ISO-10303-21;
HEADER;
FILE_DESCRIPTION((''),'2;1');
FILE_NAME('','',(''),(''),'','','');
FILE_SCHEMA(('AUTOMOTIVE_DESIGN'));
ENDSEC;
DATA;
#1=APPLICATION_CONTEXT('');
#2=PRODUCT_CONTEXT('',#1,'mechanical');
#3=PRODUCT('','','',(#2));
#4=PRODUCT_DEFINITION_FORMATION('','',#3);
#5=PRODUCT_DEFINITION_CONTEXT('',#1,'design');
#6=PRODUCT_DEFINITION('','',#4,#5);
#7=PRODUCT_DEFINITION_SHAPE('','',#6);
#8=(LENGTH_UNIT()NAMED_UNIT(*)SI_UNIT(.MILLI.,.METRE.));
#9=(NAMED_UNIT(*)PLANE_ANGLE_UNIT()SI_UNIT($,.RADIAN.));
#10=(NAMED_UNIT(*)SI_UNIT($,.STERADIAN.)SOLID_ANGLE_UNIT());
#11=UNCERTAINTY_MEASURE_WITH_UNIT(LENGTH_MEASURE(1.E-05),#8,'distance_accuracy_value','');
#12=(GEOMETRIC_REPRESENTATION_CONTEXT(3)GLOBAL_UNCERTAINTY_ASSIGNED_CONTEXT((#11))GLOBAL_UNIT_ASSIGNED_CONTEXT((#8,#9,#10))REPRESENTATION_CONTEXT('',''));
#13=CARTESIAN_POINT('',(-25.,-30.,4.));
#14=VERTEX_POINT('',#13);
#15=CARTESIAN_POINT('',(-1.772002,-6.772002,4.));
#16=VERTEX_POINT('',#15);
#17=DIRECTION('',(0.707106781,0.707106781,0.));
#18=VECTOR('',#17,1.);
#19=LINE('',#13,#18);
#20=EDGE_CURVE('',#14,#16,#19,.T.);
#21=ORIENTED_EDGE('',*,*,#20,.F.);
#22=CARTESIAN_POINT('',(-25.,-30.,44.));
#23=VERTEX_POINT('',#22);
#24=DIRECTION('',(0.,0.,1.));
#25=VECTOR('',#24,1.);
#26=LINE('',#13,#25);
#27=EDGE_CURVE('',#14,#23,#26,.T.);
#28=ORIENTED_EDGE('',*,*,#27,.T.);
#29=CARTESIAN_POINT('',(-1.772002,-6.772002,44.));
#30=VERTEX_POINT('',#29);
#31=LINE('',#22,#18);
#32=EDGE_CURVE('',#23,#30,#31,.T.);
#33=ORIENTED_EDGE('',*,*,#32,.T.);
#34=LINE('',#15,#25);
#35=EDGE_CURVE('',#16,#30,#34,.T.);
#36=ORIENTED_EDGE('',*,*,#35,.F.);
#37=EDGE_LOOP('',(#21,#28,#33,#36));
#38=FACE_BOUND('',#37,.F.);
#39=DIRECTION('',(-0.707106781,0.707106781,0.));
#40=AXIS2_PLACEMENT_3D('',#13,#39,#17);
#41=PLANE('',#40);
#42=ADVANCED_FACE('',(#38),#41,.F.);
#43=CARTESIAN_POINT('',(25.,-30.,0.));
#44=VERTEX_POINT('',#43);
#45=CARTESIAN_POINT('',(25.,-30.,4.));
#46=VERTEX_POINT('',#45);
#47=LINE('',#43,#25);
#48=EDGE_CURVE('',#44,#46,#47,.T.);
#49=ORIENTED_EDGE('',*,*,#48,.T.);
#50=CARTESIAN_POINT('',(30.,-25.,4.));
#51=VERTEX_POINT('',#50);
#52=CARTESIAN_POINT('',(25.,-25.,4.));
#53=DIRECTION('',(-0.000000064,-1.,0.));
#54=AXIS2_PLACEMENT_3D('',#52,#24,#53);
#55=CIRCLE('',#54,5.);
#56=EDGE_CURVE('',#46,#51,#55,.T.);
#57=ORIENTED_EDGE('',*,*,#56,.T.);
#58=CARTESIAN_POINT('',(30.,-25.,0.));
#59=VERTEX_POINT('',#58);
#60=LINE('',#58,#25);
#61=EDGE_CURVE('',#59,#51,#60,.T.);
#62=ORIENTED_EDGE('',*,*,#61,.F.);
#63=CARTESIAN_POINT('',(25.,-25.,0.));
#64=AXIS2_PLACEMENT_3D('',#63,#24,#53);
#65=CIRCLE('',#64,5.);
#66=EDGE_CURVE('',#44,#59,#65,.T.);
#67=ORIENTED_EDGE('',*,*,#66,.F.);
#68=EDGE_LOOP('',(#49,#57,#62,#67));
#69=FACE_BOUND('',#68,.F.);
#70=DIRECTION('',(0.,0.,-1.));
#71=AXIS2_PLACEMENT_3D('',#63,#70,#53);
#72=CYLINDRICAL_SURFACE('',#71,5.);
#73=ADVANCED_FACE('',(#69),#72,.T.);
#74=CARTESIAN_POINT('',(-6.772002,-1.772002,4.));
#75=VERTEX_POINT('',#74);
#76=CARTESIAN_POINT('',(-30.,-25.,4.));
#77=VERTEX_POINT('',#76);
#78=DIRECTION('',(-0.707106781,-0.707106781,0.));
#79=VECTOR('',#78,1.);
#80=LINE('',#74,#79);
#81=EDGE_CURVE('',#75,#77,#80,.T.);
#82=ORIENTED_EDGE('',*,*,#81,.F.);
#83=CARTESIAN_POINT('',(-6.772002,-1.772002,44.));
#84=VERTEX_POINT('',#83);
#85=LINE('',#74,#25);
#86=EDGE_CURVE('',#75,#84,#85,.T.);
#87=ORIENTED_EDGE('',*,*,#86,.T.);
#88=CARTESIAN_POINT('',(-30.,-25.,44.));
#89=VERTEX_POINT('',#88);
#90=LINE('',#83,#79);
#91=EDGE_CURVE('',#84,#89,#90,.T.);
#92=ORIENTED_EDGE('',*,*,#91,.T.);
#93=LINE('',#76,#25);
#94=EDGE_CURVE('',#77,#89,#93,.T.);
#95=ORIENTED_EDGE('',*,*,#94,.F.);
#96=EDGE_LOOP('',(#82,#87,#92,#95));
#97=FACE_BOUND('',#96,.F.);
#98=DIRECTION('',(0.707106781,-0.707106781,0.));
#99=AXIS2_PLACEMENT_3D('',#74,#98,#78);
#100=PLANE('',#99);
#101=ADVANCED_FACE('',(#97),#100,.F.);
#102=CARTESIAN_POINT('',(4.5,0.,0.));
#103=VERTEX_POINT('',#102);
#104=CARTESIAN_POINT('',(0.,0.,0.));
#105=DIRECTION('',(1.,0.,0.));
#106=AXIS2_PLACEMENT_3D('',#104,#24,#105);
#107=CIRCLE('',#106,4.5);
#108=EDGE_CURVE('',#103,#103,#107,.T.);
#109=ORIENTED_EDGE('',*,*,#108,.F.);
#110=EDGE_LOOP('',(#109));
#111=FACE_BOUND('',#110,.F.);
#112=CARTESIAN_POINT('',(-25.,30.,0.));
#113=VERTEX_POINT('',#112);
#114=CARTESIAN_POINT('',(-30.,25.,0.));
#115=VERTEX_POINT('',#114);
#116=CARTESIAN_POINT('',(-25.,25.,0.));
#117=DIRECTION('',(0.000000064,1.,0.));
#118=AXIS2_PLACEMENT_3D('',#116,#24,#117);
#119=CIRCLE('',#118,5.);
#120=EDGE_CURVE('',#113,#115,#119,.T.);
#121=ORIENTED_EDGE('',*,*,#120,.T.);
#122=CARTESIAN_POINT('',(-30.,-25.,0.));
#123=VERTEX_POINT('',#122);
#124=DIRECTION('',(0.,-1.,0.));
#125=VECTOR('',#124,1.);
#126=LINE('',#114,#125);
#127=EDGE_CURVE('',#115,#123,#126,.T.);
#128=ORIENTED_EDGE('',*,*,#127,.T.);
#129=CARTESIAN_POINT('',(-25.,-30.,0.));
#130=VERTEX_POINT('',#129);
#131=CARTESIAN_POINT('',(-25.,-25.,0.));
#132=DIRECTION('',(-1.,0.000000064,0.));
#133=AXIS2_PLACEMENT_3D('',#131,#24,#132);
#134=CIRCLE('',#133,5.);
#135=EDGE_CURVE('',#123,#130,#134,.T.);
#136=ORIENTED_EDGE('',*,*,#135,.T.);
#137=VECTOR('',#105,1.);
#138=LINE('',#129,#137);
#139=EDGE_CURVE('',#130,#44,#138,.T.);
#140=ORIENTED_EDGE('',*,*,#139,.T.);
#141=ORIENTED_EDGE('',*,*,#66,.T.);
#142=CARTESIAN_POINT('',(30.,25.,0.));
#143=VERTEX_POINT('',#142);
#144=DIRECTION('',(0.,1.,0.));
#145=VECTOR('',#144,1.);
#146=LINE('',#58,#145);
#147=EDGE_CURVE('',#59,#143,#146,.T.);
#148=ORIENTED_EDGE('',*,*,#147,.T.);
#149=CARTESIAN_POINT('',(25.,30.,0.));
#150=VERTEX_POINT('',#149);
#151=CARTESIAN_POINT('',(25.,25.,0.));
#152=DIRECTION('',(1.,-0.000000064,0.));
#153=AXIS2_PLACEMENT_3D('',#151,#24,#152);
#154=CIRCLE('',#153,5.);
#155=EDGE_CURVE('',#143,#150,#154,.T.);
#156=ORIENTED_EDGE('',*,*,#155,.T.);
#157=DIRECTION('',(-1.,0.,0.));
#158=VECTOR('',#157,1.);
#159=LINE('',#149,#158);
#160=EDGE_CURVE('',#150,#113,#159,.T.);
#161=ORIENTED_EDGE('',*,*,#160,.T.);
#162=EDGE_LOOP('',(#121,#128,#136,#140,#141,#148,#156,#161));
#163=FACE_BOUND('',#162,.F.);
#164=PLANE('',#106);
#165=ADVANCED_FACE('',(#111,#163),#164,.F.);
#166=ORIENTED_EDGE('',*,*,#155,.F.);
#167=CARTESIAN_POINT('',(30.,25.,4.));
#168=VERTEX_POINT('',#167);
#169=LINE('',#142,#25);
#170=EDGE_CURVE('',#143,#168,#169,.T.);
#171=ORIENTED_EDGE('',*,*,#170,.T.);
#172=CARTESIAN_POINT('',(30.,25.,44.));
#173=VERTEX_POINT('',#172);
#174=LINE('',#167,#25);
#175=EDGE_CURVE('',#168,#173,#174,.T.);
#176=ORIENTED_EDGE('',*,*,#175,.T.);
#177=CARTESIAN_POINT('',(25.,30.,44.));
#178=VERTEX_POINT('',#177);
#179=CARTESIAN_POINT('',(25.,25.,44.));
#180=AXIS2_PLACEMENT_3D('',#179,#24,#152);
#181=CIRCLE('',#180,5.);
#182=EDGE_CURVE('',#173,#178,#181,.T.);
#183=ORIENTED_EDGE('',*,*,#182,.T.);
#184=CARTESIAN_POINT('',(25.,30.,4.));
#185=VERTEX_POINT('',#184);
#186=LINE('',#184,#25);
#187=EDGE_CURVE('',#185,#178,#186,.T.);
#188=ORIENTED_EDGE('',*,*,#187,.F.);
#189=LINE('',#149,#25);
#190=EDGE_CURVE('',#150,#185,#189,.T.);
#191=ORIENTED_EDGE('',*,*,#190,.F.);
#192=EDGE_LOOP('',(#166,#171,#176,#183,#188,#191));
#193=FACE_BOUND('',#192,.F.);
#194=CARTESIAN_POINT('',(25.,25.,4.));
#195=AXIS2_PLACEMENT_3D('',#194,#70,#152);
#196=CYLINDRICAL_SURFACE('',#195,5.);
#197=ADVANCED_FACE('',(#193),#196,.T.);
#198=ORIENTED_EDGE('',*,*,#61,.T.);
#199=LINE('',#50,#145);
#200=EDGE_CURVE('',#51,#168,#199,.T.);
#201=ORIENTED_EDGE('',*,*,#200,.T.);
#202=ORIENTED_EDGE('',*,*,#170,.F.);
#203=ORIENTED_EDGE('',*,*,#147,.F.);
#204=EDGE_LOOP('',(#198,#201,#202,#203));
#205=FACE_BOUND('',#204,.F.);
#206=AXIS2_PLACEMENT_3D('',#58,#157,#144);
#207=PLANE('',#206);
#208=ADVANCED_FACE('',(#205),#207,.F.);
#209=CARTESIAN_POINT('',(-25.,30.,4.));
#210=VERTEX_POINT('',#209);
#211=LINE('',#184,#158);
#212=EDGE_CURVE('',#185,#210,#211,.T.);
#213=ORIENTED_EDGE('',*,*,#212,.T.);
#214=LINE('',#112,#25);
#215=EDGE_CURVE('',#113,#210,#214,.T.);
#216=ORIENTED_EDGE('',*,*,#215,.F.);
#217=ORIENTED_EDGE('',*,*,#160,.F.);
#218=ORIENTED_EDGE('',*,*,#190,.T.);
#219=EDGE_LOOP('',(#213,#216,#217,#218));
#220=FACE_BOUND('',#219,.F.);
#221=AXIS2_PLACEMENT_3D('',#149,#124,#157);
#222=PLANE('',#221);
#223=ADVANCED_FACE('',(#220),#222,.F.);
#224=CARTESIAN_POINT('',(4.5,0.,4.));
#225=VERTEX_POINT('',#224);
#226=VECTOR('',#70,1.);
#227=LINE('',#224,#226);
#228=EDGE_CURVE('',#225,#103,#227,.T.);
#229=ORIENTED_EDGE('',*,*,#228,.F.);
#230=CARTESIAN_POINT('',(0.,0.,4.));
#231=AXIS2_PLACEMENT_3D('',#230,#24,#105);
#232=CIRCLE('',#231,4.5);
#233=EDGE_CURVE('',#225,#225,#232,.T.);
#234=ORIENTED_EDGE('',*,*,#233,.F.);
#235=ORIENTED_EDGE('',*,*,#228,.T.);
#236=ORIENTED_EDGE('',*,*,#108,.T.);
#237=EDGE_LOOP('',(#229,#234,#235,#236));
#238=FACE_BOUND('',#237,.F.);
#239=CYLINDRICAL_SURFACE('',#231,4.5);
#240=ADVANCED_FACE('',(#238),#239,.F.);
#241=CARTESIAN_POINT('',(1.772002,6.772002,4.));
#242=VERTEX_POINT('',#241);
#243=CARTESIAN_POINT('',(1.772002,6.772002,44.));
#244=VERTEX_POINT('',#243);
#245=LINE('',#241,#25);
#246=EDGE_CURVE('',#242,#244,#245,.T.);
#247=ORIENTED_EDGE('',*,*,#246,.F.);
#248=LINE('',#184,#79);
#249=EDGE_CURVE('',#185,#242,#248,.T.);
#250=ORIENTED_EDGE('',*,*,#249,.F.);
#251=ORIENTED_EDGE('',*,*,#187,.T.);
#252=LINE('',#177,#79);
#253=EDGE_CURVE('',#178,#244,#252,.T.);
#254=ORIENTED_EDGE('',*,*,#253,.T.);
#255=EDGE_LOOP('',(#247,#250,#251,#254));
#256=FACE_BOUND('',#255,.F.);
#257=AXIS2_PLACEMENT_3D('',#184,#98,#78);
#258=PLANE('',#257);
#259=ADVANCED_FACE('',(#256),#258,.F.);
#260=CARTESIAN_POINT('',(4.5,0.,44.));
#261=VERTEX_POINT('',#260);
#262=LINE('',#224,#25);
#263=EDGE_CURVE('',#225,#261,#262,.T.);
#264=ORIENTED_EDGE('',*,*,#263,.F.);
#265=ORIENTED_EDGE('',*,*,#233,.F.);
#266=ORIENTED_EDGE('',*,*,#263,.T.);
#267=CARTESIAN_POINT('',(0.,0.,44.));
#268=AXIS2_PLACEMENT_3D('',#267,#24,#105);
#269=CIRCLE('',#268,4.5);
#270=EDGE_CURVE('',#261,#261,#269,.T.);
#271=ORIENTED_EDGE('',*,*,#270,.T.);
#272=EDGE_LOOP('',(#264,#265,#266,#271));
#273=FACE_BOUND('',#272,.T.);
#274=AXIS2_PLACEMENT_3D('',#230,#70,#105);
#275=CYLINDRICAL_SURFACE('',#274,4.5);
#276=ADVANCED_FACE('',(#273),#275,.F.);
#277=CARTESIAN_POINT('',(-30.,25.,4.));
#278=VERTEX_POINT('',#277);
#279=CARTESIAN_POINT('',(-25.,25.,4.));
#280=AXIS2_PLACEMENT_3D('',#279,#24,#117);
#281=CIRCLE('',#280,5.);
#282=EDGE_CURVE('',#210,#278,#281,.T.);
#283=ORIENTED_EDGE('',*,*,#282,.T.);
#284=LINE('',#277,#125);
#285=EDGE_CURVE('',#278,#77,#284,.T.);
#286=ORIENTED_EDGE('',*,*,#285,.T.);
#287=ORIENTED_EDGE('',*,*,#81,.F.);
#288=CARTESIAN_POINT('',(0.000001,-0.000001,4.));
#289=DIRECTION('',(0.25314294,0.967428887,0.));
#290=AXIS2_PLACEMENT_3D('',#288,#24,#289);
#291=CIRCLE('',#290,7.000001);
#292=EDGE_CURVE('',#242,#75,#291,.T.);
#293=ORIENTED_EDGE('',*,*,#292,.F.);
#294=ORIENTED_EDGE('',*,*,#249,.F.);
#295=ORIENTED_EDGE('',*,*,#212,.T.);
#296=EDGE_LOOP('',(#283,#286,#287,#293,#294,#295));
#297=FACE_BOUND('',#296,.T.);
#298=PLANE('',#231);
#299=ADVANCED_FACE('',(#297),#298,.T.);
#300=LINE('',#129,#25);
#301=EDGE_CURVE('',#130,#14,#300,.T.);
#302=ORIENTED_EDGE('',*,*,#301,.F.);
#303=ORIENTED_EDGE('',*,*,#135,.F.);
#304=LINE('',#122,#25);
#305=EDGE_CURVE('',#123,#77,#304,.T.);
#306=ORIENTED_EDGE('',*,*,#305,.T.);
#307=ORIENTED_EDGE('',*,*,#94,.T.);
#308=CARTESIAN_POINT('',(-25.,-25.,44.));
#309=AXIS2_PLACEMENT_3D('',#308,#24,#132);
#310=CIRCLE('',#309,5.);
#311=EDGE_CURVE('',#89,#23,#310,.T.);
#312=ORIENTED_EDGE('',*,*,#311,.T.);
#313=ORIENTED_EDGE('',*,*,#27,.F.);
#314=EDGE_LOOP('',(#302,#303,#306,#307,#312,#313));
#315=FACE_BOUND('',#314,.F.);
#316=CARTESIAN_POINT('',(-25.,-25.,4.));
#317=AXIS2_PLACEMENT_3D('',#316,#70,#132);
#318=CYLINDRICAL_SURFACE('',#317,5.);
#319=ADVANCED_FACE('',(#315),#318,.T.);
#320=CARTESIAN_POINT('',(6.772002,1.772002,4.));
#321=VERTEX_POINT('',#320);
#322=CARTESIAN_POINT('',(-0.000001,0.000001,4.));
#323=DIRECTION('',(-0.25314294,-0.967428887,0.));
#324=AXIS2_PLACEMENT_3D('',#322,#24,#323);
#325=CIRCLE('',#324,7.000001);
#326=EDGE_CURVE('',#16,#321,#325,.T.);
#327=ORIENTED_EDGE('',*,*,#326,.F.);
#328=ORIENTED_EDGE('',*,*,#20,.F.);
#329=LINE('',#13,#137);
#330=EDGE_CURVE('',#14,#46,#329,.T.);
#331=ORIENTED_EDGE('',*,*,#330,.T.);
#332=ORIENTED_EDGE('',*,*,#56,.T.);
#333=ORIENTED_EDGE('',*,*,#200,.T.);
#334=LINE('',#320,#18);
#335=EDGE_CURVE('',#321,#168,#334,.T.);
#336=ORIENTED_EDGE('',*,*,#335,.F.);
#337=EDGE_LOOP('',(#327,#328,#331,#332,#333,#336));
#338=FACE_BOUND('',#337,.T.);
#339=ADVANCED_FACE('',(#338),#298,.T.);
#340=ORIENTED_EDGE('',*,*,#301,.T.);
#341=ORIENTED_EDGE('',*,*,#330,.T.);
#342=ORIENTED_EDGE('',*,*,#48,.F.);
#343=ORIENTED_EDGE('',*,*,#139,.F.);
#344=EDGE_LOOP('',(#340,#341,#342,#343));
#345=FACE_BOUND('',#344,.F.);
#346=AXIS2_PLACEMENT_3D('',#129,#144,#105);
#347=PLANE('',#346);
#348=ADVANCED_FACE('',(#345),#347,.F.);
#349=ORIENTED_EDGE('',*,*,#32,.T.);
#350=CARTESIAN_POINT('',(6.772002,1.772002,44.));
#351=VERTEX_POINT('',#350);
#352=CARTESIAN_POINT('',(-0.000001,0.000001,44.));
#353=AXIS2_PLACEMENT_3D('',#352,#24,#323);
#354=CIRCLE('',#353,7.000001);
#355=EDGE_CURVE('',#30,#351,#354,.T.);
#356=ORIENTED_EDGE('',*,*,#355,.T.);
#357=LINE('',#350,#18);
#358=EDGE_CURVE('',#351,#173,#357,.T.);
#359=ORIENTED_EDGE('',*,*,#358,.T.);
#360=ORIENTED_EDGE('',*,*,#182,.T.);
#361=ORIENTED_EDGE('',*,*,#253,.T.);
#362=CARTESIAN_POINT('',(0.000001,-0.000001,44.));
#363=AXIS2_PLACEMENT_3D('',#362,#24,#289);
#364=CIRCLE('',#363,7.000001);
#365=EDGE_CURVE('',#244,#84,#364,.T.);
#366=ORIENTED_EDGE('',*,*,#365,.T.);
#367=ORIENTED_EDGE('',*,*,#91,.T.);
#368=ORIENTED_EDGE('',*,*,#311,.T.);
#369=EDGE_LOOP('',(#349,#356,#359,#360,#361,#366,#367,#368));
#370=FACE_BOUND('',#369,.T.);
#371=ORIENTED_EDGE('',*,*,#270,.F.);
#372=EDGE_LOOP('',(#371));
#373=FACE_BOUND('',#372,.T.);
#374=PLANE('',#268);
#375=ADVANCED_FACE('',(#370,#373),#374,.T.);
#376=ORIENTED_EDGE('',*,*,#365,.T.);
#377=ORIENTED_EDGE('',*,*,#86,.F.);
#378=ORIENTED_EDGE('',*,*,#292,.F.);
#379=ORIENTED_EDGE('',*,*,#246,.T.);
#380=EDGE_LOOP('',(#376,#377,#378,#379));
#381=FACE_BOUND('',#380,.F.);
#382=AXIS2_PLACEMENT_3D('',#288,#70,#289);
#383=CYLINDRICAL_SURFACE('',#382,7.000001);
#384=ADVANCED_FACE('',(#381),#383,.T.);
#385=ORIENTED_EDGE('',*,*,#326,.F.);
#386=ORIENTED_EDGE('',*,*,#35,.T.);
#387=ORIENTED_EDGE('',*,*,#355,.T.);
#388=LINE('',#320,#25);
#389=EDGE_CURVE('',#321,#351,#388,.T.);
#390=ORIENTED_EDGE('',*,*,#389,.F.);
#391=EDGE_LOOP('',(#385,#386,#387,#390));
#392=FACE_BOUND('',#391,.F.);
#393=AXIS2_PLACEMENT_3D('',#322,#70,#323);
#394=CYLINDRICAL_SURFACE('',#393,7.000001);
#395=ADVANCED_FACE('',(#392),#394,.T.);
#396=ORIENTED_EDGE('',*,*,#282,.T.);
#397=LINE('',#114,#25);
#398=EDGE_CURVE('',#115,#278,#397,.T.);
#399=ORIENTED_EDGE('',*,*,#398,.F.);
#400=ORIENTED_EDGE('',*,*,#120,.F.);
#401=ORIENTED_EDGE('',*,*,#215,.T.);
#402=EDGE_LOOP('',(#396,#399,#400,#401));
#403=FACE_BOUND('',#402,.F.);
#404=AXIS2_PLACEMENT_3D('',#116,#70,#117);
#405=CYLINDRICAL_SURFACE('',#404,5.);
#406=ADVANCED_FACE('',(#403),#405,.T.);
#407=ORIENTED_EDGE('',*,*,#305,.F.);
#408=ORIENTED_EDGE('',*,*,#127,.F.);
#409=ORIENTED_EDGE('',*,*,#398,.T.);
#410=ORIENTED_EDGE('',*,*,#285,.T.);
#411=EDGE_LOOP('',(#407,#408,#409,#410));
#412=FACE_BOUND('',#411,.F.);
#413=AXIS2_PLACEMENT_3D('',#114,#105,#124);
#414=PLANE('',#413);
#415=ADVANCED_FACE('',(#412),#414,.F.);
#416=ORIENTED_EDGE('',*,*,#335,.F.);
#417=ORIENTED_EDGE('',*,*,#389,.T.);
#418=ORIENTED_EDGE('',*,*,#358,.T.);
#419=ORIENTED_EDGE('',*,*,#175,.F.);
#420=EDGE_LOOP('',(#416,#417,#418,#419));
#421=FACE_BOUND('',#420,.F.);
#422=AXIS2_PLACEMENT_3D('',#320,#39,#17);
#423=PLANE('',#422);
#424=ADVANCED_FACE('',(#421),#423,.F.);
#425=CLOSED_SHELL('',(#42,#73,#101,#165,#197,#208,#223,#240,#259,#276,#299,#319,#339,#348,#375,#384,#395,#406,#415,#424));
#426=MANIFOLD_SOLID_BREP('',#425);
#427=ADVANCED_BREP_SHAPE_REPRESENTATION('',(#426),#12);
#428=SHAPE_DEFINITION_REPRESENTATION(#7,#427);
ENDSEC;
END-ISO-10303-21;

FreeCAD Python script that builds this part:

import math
import FreeCAD as App
import Part
import Sketcher
Q = App.Units.Quantity

doc = App.newDocument("Part")
body = doc.addObject("PartDesign::Body", "Body")

sketch1 = body.newObject("Sketcher::SketchObject", "Sketch")
sketch1.AttachmentSupport = (doc.getObject("XY_Plane"), [""])
sketch1.MapMode = "FlatFace"
sketch1.addGeometry([
    Part.LineSegment(App.Vector(-25, -30, 0), App.Vector(25, -30, 0)),
    Part.ArcOfCircle(Part.Circle(App.Vector(25, -25, 0), App.Vector(0, 0, 1), 5), math.radians(-90), math.radians(0)),
    Part.LineSegment(App.Vector(30, -25, 0), App.Vector(30, 25, 0)),
    Part.ArcOfCircle(Part.Circle(App.Vector(25, 25, 0), App.Vector(0, 0, 1), 5), math.radians(0), math.radians(90)),
    Part.LineSegment(App.Vector(25, 30, 0), App.Vector(-25, 30, 0)),
    Part.ArcOfCircle(Part.Circle(App.Vector(-25, 25, 0), App.Vector(0, 0, 1), 5), math.radians(90), math.radians(180)),
    Part.LineSegment(App.Vector(-30, 25, 0), App.Vector(-30, -25, 0)),
    Part.ArcOfCircle(Part.Circle(App.Vector(-25, -25, 0), App.Vector(0, 0, 1), 5), math.radians(180), math.radians(270)),
], False)
sketch1.addConstraint([
    Sketcher.Constraint("Tangent", 0, 2, 1, 1),
    Sketcher.Constraint("Tangent", 1, 2, 2, 1),
    Sketcher.Constraint("Tangent", 2, 2, 3, 1),
    Sketcher.Constraint("Tangent", 3, 2, 4, 1),
    Sketcher.Constraint("Tangent", 4, 2, 5, 1),
    Sketcher.Constraint("Tangent", 5, 2, 6, 1),
    Sketcher.Constraint("Tangent", 6, 2, 7, 1),
    Sketcher.Constraint("Tangent", 7, 2, 0, 1),
    Sketcher.Constraint("Horizontal", 0),
    Sketcher.Constraint("Vertical", 2),
    Sketcher.Constraint("Horizontal", 4),
    Sketcher.Constraint("Vertical", 6),
    Sketcher.Constraint("Equal", 1, 3),
    Sketcher.Constraint("Equal", 3, 5),
    Sketcher.Constraint("Equal", 5, 7),
    Sketcher.Constraint("Symmetric", 1, 3, 5, 3, -1, 1),
    Sketcher.Constraint("Equal", 4, 2),
    Sketcher.Constraint("Radius", 1, 5.0),
    Sketcher.Constraint("DistanceX", 0, 1, 0, 2, 50.0),
])
pad1 = body.newObject("PartDesign::Pad", "Pad")
pad1.Profile = sketch1
pad1.Length = 4

sketch2 = body.newObject("Sketcher::SketchObject", "Sketch001")
sketch2.AttachmentSupport = (doc.getObject("XY_Plane"), [""])
sketch2.MapMode = "FlatFace"
sketch2.AttachmentOffset = App.Placement(App.Vector(0, 0, 4), App.Rotation())
sketch2.addGeometry([
    Part.LineSegment(App.Vector(25, 30, 0), App.Vector(1.8, 6.8, 0)),
    Part.ArcOfCircle(Part.Circle(App.Vector(0, 0, 0), App.Vector(0, 0, 1), 7), math.radians(75), math.radians(195)),
    Part.LineSegment(App.Vector(-6.8, -1.8, 0), App.Vector(-30, -25, 0)),
    Part.ArcOfCircle(Part.Circle(App.Vector(-25, -25, 0), App.Vector(0, 0, 1), 5), math.radians(180), math.radians(270)),
    Part.LineSegment(App.Vector(-25, -30, 0), App.Vector(-1.8, -6.8, 0)),
    Part.ArcOfCircle(Part.Circle(App.Vector(0, 0, 0), App.Vector(0, 0, 1), 7), math.radians(-105), math.radians(15)),
    Part.LineSegment(App.Vector(6.8, 1.8, 0), App.Vector(30, 25, 0)),
    Part.ArcOfCircle(Part.Circle(App.Vector(25, 25, 0), App.Vector(0, 0, 1), 5), math.radians(0), math.radians(90)),
    Part.Circle(App.Vector(0, 0, 0), App.Vector(0, 0, 1), 4.5),
], False)
sketch2.addConstraint([
    Sketcher.Constraint("Coincident", 0, 2, 1, 1),
    Sketcher.Constraint("Coincident", 1, 2, 2, 1),
    Sketcher.Constraint("Coincident", 2, 2, 3, 1),
    Sketcher.Constraint("Coincident", 3, 2, 4, 1),
    Sketcher.Constraint("Coincident", 4, 2, 5, 1),
    Sketcher.Constraint("Coincident", 5, 2, 6, 1),
    Sketcher.Constraint("Coincident", 6, 2, 7, 1),
    Sketcher.Constraint("Coincident", 7, 2, 0, 1),
    Sketcher.Constraint("Coincident", 1, 3, -1, 1),
    Sketcher.Constraint("Coincident", 5, 3, -1, 1),
    Sketcher.Constraint("Coincident", 8, 3, -1, 1),
    Sketcher.Constraint("Equal", 1, 5),
    Sketcher.Constraint("Equal", 3, 7),
    Sketcher.Constraint("Symmetric", 3, 3, 7, 3, -1, 1),
    Sketcher.Constraint("Parallel", 0, 2),
    Sketcher.Constraint("Parallel", 2, 4),
    Sketcher.Constraint("Parallel", 4, 6),
    Sketcher.Constraint("Horizontal", 3, 3, 2, 2),
    Sketcher.Constraint("Horizontal", 7, 3, 6, 2),
    Sketcher.Constraint("Equal", 0, 2),
    Sketcher.Constraint("Equal", 2, 4),
    Sketcher.Constraint("Diameter", 8, 9.0),
    Sketcher.Constraint("Radius", 1, 7.000001),
    Sketcher.Constraint("Radius", 3, 5.0),
    Sketcher.Constraint("Angle", 0, Q("-135 deg")),
    Sketcher.Constraint("DistanceX", 3, 3, -1, 1, 25.0),
    Sketcher.Constraint("DistanceY", 3, 3, -1, 1, 25.0),
])
pad2 = body.newObject("PartDesign::Pad", "Pad001")
pad2.Profile = sketch2
pad2.Length = 40

sketch3 = body.newObject("Sketcher::SketchObject", "Sketch002")
sketch3.AttachmentSupport = (doc.getObject("XY_Plane"), [""])
sketch3.MapMode = "FlatFace"
sketch3.AttachmentOffset = App.Placement(App.Vector(0, 0, 4), App.Rotation())
sketch3.addGeometry(Part.Circle(App.Vector(0, 0, 0), App.Vector(0, 0, 1), 4.5), False)
sketch3.addConstraint([
    Sketcher.Constraint("Coincident", 0, 3, -1, 1),
    Sketcher.Constraint("Diameter", 0, 9.0),
])
pocket1 = body.newObject("PartDesign::Pocket", "Pocket")
pocket1.Profile = sketch3
pocket1.Length = 25

doc.recompute()
